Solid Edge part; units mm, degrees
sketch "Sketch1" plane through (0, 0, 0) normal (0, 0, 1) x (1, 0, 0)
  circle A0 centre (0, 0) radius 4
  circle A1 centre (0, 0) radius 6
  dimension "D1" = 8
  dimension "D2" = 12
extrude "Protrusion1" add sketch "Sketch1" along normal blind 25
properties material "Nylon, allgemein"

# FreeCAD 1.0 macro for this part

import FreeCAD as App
import Part
import Sketcher

doc = App.newDocument("Part")
body = doc.addObject("PartDesign::Body", "Body")

sketch1 = doc.addObject("Sketcher::SketchObject", "Sketch")
body.addObject(sketch1)
sketch1.AttachmentSupport = (doc.XY_Plane, [""])
sketch1.MapMode = "FlatFace"
sketch1.addGeometry([
    Part.Circle(App.Vector(0, 0, 0), App.Vector(0, 0, 1), 6),
    Part.Circle(App.Vector(0, 0, 0), App.Vector(0, 0, 1), 4),
], False)
sketch1.addConstraint([
    Sketcher.Constraint("Coincident", 0, 3, -1, 1),
    Sketcher.Constraint("Coincident", 1, 3, -1, 1),
    Sketcher.Constraint("Diameter", 0, 12.0),
    Sketcher.Constraint("Diameter", 1, 8.0),
])
pad1 = doc.addObject("PartDesign::Pad", "Pad")
body.addObject(pad1)
pad1.Profile = sketch1
pad1.Length = 25

doc.recompute()
